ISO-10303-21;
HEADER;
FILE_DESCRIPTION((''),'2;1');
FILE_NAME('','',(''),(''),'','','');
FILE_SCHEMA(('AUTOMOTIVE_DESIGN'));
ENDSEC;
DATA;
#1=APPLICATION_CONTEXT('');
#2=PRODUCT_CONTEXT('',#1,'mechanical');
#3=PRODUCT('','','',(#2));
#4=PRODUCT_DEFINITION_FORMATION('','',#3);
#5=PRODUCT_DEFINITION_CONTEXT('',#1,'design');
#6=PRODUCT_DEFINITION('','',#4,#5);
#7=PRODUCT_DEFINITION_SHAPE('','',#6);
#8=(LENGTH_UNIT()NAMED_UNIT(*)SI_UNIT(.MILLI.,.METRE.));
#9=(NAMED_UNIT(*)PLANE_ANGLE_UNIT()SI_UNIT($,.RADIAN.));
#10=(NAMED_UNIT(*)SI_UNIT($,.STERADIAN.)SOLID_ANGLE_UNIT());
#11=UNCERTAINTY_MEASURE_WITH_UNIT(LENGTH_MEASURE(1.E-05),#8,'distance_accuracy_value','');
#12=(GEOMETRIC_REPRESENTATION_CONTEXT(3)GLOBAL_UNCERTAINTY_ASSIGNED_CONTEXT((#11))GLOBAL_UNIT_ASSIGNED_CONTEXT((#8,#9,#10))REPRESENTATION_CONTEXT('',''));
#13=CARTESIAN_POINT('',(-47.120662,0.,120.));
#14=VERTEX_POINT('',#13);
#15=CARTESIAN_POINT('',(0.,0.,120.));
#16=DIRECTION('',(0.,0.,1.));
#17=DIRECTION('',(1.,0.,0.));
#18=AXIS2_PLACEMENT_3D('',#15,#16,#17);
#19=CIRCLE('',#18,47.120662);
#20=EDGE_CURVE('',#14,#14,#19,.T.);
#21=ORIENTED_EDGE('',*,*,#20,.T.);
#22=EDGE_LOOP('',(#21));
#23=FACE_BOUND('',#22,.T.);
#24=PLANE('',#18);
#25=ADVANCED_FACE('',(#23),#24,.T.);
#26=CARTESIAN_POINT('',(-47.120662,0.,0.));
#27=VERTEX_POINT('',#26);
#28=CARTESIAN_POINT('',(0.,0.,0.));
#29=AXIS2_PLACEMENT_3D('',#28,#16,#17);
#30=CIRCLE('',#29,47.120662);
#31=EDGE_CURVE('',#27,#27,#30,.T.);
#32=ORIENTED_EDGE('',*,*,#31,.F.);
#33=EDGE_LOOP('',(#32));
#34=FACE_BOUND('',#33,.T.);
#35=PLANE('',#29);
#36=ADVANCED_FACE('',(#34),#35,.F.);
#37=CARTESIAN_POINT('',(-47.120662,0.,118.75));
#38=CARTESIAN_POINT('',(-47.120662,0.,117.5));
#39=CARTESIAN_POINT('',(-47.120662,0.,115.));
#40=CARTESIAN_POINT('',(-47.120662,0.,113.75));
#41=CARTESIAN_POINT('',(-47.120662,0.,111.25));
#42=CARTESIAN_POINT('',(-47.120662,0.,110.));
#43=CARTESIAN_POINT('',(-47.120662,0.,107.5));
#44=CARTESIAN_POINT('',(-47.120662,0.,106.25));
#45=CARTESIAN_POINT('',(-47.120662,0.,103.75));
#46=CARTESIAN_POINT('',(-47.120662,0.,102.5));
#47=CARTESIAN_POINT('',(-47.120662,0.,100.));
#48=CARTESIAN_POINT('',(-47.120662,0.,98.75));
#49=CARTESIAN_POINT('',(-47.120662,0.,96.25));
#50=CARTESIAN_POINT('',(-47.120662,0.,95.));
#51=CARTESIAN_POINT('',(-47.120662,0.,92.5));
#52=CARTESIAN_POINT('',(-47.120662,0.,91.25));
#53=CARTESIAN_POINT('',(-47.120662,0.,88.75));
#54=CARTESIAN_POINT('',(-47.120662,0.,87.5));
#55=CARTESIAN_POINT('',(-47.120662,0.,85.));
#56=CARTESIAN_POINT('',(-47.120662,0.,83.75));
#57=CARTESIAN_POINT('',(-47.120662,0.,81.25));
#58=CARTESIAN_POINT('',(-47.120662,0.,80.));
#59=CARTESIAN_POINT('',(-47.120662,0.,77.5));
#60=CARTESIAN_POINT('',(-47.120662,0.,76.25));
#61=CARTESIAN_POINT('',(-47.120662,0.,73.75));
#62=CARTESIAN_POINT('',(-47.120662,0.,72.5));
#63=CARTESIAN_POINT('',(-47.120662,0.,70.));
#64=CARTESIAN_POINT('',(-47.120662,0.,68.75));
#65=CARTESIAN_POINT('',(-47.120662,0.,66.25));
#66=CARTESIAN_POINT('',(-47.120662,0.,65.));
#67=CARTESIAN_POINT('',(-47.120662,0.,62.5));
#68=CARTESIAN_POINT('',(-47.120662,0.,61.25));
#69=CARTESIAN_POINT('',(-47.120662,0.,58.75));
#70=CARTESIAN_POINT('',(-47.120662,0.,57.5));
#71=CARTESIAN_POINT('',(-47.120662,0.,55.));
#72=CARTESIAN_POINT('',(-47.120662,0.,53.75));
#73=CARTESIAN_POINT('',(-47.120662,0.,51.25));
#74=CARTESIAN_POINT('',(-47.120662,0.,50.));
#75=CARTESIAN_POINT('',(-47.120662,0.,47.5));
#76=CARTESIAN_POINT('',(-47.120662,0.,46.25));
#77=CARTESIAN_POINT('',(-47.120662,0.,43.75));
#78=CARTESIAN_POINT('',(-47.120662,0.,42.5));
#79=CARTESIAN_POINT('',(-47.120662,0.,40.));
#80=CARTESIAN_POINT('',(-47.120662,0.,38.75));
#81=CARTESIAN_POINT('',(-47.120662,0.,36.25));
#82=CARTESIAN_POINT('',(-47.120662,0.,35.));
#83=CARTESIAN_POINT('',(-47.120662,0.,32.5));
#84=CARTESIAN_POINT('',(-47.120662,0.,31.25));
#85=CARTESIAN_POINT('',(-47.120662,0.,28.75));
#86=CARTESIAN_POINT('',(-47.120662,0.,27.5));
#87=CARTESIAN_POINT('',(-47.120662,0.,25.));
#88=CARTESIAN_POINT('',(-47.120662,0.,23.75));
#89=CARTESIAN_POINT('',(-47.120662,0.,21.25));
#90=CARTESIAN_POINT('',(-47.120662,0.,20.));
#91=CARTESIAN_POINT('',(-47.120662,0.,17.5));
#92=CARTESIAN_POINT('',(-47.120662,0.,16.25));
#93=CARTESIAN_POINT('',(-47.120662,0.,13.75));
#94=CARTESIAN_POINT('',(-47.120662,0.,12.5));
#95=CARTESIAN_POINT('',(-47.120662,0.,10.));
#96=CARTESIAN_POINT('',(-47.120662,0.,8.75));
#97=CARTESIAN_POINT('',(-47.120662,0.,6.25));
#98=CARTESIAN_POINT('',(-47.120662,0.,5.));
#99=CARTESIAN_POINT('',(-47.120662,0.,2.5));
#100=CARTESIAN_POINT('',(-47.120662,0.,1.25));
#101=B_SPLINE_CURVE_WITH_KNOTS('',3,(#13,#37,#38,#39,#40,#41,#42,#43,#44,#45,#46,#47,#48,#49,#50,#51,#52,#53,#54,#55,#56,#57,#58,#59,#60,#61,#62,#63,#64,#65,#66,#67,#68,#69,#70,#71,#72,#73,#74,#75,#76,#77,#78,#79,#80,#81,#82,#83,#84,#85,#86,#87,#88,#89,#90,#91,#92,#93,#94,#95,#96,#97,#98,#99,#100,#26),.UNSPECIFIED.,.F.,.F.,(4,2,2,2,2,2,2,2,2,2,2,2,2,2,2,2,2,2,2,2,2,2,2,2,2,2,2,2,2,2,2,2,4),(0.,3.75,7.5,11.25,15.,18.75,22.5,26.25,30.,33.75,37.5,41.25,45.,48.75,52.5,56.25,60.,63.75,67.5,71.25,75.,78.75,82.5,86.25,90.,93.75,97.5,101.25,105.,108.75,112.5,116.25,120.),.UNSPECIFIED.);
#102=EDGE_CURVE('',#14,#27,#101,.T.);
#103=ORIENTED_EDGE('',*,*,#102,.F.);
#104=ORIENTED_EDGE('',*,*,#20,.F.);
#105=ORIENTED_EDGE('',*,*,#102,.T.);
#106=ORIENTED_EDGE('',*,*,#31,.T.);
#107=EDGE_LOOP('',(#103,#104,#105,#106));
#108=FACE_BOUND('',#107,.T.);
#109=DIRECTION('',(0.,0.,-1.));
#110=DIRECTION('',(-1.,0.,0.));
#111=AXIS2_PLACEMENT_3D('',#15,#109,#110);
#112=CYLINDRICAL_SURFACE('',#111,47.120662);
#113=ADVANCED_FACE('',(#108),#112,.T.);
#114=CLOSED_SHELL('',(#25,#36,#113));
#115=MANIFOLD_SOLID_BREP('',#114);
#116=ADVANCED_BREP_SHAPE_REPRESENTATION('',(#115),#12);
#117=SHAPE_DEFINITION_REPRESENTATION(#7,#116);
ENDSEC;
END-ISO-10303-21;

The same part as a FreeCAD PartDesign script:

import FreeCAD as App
import Part
import Sketcher

doc = App.newDocument("Part")
params = doc.addObject("Spreadsheet::Sheet", "Params")
for row, (alias, value) in enumerate([
    ("pad1_length", "120 mm"),
], start=1):
    params.set(f"A{row}", alias)
    params.set(f"B{row}", "=" + value)
    params.setAlias(f"B{row}", alias)

body = doc.addObject("PartDesign::Body", "Body")

# Sketch on XY plane
sketch1 = doc.addObject("Sketcher::SketchObject", "Sketch")
body.addObject(sketch1)
sketch1.AttachmentSupport = (doc.XY_Plane, [""])
sketch1.MapMode = "FlatFace"
sketch1.addGeometry(Part.Circle(App.Vector(0, 0, 0), App.Vector(0, 0, 1), 47), False)
sketch1.addConstraint([
    Sketcher.Constraint("Coincident", 0, 3, -1, 1),
    Sketcher.Constraint("Diameter", 0, 94.241324),
])
pad1 = doc.addObject("PartDesign::Pad", "Pad")
body.addObject(pad1)
pad1.Profile = sketch1
pad1.setExpression("Length", "Params.pad1_length")

doc.recompute()
